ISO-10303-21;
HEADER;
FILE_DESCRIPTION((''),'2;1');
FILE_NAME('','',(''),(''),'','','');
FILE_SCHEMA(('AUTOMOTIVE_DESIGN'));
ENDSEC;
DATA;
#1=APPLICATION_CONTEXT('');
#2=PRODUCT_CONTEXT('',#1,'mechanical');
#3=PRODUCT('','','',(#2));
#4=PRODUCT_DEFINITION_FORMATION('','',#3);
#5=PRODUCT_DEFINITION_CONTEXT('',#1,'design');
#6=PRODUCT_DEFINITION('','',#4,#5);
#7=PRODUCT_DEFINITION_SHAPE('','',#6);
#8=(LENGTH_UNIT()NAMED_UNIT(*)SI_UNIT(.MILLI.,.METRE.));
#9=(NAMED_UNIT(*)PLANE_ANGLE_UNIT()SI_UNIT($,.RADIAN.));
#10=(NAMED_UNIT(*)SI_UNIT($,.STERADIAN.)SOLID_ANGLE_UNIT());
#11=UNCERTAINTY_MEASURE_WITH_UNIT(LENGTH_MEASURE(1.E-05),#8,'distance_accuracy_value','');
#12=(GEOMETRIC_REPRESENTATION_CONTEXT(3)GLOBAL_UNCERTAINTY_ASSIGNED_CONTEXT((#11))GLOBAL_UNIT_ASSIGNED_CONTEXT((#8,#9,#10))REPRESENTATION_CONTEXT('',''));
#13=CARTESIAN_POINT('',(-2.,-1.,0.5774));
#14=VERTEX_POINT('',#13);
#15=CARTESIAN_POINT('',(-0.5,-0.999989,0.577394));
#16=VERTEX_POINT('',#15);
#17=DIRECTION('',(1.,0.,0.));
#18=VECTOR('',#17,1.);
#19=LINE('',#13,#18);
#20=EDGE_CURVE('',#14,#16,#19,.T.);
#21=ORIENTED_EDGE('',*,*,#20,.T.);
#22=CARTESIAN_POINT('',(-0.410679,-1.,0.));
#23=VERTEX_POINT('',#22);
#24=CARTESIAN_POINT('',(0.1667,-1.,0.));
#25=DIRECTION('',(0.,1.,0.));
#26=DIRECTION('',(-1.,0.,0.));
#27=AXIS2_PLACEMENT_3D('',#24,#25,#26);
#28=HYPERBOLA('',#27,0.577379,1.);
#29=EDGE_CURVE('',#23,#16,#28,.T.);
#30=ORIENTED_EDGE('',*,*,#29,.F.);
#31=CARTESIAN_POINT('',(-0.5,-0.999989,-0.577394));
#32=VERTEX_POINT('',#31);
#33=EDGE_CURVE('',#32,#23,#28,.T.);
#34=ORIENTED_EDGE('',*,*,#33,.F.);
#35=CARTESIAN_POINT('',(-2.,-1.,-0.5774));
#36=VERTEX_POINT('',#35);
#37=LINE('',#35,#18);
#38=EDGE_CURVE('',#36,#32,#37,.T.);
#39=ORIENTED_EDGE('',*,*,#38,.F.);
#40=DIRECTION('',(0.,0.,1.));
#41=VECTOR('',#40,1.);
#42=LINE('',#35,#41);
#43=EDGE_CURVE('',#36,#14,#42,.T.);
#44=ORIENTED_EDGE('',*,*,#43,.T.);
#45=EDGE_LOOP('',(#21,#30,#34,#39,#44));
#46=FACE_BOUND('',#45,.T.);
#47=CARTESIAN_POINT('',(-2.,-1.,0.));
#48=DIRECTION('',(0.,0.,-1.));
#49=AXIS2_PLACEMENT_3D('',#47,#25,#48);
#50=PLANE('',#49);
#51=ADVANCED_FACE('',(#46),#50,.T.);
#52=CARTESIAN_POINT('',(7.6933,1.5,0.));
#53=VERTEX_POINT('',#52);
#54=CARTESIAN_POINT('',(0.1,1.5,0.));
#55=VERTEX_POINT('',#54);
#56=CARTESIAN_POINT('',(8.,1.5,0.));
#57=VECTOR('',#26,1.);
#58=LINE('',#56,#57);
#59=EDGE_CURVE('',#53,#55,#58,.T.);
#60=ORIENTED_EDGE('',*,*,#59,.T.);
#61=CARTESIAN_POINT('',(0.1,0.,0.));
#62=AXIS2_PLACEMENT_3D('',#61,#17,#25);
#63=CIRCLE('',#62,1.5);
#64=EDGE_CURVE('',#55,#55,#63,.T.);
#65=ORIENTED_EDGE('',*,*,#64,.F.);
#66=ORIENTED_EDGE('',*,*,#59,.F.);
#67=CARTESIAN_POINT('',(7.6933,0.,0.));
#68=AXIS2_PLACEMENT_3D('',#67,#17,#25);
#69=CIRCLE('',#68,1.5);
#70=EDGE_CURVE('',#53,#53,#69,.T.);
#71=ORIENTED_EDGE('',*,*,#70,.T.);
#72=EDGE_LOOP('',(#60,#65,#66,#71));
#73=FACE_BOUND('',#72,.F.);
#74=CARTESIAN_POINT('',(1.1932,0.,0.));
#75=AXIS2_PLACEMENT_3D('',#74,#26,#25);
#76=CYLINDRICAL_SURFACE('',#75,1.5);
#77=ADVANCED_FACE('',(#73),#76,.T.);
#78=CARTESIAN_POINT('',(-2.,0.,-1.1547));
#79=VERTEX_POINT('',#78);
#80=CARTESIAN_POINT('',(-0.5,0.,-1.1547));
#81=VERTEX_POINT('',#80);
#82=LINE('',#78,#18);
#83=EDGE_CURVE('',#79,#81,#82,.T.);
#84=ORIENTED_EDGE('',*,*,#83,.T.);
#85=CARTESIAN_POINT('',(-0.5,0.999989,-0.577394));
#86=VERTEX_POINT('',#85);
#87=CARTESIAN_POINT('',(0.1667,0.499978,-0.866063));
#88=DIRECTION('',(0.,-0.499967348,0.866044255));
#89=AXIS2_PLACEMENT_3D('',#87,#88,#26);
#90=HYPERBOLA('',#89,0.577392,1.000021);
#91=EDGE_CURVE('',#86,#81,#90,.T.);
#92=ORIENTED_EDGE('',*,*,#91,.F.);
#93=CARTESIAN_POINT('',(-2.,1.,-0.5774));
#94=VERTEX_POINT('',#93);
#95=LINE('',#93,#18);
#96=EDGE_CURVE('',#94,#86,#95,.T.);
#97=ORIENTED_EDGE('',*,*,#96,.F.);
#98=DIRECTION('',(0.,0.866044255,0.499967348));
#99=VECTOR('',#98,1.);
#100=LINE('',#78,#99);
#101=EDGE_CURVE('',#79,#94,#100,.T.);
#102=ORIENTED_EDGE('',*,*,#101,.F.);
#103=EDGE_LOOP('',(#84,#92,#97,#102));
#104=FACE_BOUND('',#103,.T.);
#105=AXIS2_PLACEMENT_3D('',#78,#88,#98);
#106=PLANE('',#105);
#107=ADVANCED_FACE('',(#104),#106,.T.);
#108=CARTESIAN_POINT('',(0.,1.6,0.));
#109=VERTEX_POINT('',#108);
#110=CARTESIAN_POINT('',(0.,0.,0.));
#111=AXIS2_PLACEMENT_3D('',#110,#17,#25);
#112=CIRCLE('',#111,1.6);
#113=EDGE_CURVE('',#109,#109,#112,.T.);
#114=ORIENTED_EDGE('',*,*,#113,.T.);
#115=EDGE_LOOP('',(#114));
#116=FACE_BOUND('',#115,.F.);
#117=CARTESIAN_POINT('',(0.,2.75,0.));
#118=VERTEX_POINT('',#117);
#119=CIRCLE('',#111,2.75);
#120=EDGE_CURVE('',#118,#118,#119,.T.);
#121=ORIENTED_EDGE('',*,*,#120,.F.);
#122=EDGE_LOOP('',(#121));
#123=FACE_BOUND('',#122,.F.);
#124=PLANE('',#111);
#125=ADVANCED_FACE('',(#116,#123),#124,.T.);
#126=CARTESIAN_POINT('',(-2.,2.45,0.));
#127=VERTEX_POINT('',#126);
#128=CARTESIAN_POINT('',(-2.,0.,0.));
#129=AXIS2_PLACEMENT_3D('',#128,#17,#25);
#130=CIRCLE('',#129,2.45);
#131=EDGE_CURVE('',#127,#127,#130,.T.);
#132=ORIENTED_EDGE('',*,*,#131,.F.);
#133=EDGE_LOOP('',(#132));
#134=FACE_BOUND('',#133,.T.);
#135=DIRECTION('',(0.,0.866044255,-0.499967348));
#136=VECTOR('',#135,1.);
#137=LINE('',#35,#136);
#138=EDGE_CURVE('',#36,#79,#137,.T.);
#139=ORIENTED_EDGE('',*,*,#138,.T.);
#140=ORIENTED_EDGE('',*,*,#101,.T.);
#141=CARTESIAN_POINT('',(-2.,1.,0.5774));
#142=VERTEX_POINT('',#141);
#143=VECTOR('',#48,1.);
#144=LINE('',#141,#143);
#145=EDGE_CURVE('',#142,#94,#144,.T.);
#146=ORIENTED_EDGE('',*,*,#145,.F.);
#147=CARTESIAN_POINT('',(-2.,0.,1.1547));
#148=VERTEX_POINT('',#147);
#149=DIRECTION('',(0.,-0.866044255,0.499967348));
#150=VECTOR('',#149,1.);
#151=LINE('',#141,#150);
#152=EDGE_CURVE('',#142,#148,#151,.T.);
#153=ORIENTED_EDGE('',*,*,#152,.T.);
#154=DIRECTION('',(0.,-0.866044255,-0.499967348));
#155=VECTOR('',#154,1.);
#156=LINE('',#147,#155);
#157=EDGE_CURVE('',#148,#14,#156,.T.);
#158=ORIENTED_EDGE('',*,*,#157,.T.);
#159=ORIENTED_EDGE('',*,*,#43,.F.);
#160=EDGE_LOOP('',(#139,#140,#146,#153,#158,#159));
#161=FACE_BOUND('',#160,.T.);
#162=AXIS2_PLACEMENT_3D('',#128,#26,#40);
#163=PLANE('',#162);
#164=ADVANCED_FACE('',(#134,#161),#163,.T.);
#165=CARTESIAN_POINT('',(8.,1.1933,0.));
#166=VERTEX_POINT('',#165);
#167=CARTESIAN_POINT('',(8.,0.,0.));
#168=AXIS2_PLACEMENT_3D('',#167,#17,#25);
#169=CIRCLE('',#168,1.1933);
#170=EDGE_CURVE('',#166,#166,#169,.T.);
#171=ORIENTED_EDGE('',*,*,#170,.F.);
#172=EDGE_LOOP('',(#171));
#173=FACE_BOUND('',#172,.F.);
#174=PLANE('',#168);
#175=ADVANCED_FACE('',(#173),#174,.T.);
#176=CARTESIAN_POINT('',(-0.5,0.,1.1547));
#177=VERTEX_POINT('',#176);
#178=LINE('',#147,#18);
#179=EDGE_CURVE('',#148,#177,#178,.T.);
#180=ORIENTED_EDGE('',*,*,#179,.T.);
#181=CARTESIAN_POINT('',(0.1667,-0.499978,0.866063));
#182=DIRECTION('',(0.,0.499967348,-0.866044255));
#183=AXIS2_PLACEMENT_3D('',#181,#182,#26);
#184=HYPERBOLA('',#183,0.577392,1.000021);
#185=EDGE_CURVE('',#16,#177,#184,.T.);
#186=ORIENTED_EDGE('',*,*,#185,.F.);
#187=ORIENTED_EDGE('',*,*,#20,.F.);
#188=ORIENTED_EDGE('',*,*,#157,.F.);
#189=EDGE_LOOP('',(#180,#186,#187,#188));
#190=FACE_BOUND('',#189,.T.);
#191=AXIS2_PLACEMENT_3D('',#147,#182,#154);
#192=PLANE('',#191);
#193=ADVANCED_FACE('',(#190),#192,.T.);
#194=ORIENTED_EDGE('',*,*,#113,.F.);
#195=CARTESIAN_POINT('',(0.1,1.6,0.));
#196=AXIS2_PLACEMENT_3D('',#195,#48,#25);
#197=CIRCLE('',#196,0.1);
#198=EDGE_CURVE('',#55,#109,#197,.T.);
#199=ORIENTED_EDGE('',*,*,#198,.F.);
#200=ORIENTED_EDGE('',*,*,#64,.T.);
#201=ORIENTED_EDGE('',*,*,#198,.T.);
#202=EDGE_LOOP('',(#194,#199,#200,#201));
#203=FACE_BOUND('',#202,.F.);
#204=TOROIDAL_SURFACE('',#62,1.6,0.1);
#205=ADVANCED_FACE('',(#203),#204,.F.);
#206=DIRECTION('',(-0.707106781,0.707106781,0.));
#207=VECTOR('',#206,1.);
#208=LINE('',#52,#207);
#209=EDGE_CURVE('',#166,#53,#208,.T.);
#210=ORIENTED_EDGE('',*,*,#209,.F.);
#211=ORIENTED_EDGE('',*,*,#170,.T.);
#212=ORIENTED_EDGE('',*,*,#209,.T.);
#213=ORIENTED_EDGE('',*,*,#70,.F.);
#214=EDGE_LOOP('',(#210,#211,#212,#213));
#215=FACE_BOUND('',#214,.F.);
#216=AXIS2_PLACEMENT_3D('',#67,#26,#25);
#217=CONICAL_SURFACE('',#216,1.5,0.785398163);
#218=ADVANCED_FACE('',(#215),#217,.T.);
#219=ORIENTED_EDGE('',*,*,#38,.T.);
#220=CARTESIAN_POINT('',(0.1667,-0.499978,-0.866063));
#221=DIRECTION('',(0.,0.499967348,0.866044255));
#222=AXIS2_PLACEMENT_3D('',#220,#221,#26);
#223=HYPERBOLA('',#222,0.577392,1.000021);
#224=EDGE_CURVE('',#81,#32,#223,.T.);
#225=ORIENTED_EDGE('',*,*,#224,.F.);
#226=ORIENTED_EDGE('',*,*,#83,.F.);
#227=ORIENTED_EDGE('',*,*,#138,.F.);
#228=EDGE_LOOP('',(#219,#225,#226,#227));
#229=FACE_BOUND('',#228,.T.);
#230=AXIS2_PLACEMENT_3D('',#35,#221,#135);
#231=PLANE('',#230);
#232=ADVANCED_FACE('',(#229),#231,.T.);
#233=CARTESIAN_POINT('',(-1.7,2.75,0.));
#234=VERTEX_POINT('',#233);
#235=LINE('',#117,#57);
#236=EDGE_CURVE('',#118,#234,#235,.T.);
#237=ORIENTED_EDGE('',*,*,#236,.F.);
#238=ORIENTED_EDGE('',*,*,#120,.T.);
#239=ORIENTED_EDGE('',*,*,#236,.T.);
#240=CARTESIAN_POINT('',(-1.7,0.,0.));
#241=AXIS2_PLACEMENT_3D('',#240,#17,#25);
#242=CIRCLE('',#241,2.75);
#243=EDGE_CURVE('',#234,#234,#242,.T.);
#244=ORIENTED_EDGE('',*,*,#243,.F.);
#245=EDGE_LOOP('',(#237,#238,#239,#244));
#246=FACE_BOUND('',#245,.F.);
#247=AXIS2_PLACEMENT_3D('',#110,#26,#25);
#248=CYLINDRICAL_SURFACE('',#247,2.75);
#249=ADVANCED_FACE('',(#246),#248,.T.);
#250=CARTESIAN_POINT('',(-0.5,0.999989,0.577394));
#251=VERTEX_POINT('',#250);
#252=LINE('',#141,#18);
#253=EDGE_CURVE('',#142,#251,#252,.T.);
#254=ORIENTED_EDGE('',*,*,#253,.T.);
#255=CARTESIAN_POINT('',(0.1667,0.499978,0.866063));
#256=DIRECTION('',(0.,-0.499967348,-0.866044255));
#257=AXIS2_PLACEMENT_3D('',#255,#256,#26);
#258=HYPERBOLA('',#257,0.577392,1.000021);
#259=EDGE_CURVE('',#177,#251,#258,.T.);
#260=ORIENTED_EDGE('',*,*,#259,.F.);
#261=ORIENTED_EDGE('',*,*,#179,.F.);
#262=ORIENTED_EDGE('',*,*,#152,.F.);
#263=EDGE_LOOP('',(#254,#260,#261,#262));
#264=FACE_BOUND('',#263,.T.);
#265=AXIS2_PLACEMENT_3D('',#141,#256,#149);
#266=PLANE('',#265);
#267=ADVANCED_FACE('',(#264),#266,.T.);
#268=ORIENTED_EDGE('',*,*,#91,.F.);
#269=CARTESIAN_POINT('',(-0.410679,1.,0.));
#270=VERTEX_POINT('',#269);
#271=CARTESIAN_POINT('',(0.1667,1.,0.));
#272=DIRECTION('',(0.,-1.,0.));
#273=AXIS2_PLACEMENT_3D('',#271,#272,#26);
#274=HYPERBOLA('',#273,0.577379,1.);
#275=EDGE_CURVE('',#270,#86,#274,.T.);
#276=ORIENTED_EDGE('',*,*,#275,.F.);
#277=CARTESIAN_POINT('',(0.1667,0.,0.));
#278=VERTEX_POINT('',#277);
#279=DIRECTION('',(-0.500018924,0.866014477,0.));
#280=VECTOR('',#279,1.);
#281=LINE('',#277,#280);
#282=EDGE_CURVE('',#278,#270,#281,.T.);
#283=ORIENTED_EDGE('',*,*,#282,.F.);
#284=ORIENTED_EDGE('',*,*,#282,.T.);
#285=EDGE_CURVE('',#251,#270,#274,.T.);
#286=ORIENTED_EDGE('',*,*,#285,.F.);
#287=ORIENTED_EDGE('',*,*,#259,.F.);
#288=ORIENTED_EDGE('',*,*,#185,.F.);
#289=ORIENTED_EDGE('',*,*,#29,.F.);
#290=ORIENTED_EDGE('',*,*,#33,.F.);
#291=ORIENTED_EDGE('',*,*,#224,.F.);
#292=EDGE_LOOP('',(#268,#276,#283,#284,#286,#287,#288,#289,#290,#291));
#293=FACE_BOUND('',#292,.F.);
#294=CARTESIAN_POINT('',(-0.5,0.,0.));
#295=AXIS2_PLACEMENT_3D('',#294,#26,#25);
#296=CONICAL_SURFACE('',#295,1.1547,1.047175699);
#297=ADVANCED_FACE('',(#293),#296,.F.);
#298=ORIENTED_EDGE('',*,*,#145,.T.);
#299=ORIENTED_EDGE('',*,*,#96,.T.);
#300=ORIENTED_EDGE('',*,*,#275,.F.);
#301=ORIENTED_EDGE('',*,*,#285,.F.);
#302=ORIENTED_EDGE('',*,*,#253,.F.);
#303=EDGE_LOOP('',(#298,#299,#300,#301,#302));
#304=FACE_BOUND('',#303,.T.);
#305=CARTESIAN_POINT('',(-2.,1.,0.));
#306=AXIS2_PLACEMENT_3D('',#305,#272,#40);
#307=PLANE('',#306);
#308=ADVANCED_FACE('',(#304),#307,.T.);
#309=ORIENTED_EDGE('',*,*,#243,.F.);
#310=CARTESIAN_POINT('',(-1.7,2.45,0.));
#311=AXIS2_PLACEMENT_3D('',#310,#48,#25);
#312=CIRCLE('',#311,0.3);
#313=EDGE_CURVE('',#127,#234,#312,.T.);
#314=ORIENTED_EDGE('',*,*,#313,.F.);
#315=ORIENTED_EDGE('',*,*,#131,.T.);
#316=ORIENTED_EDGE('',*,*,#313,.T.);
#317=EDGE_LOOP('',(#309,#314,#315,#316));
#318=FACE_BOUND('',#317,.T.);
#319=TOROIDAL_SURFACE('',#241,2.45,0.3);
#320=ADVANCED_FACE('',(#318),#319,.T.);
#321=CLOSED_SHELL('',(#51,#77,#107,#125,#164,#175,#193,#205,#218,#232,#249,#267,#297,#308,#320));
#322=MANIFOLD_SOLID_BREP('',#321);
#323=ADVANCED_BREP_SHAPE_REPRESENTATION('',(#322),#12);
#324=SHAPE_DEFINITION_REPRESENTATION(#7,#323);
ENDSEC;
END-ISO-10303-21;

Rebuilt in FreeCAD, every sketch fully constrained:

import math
import FreeCAD as App
import Part
import Sketcher


def edges_at(feature, points):
    """Names of the edges that pass closest to the given points."""
    edges = feature.Shape.Edges
    near = lambda p: min(range(len(edges)), key=lambda i: edges[i].distToShape(Part.Vertex(*p))[0])
    return sorted({f"Edge{near(p) + 1}" for p in points})


def add_polygon(sketch, points):
    """Adds a closed chain of lines whose ends are joined by coincident constraints."""
    first, n = sketch.GeometryCount, len(points)
    for a, b in zip(points, points[1:] + points[:1]):
        sketch.addGeometry(Part.LineSegment(App.Vector(*a, 0), App.Vector(*b, 0)), False)
    for i in range(n):
        sketch.addConstraint(Sketcher.Constraint("Coincident", first + i, 2, first + (i + 1) % n, 1))

doc = App.newDocument("Part")
body = doc.addObject("PartDesign::Body", "Body")

# Sketch on XY plane
sketch1 = doc.addObject("Sketcher::SketchObject", "Sketch")
body.addObject(sketch1)
sketch1.AttachmentSupport = (doc.XY_Plane, [""])
sketch1.MapMode = "FlatFace"
add_polygon(sketch1, [(0.1667, 0), (8, 0), (8, 1.5), (0, 1.5), (0, 2.75), (-2, 2.75), (-2, 1.1547), (-0.5, 1.1547)])  # lines 0-7
sketch1.addConstraint([
    Sketcher.Constraint("Horizontal", 0),
    Sketcher.Constraint("Vertical", 1),
    Sketcher.Constraint("Horizontal", 2),
    Sketcher.Constraint("Vertical", 3),
    Sketcher.Constraint("Horizontal", 4),
    Sketcher.Constraint("Vertical", 5),
    Sketcher.Constraint("Horizontal", 6),
    Sketcher.Constraint("PointOnObject", 0, 2, -1),
    Sketcher.Constraint("PointOnObject", 2, 2, -2),
    Sketcher.Constraint("Equal", 6, 1),
    Sketcher.Constraint("DistanceX", 2, 2, 2, 1, 8.0),
    Sketcher.Constraint("DistanceX", 4, 2, 4, 1, 2.0),
    Sketcher.Constraint("DistanceX", 6, 1, 6, 2, 1.5),
    Sketcher.Constraint("DistanceY", 3, 1, 3, 2, 1.25),
    Sketcher.Constraint("DistanceX", 0, 1, 0, 2, 7.8333),
    Sketcher.Constraint("DistanceY", 5, 2, 5, 1, 1.5953),
])
revolution = doc.addObject("PartDesign::Revolution", "Revolution")
body.addObject(revolution)
revolution.Profile = sketch1
revolution.ReferenceAxis = (sketch1, ["H_Axis"])
revolution.Angle = 360

# Sketch on YZ plane
sketch2 = doc.addObject("Sketcher::SketchObject", "Sketch001")
body.addObject(sketch2)
sketch2.AttachmentSupport = (doc.YZ_Plane, [""])
sketch2.MapMode = "FlatFace"
sketch2.AttachmentOffset = App.Placement(App.Vector(0, 0, -2), App.Rotation())
sketch2.addGeometry([
    Part.LineSegment(App.Vector(1, 0.5774, 0), App.Vector(0, 1.1547, 0)),  # 0
    Part.ArcOfCircle(Part.Circle(App.Vector(0, 0, 0), App.Vector(0, 0, 1), 1.1547), math.radians(30.002137), math.radians(90)),  # 1
    Part.ArcOfCircle(Part.Circle(App.Vector(0, 0, 0), App.Vector(0, 0, 1), 1.1547), math.radians(90), math.radians(149.997863)),  # 2
    Part.LineSegment(App.Vector(0, 1.1547, 0), App.Vector(-1, 0.5774, 0)),  # 3
    Part.ArcOfCircle(Part.Circle(App.Vector(0, 0, 0), App.Vector(0, 0, 1), 1.1547), math.radians(-30.002137), math.radians(30.002137)),  # 4
    Part.LineSegment(App.Vector(1, 0.5774, 0), App.Vector(1, -0.5774, 0)),  # 5
    Part.LineSegment(App.Vector(-1, 0.5774, 0), App.Vector(-1, -0.5774, 0)),  # 6
    Part.ArcOfCircle(Part.Circle(App.Vector(0, 0, 0), App.Vector(0, 0, 1), 1.1547), math.radians(149.997863), math.radians(210.002137)),  # 7
    Part.LineSegment(App.Vector(-1, -0.5774, 0), App.Vector(0, -1.1547, 0)),  # 8
    Part.ArcOfCircle(Part.Circle(App.Vector(0, 0, 0), App.Vector(0, 0, 1), 1.1547), math.radians(-149.997863), math.radians(-90)),  # 9
    Part.ArcOfCircle(Part.Circle(App.Vector(0, 0, 0), App.Vector(0, 0, 1), 1.1547), math.radians(-90), math.radians(-30.002137)),  # 10
    Part.LineSegment(App.Vector(0, -1.1547, 0), App.Vector(1, -0.5774, 0)),  # 11
], False)
sketch2.addConstraint([
    Sketcher.Constraint("Coincident", 0, 1, 1, 1),
    Sketcher.Constraint("Coincident", 1, 2, 0, 2),
    Sketcher.Constraint("Coincident", 2, 1, 3, 1),
    Sketcher.Constraint("Coincident", 3, 2, 2, 2),
    Sketcher.Constraint("Coincident", 4, 1, 5, 2),
    Sketcher.Constraint("Coincident", 5, 1, 4, 2),
    Sketcher.Constraint("Coincident", 6, 1, 7, 1),
    Sketcher.Constraint("Coincident", 7, 2, 6, 2),
    Sketcher.Constraint("Coincident", 8, 1, 9, 1),
    Sketcher.Constraint("Coincident", 9, 2, 8, 2),
    Sketcher.Constraint("Coincident", 10, 1, 11, 1),
    Sketcher.Constraint("Coincident", 11, 2, 10, 2),
    Sketcher.Constraint("Vertical", 5),
    Sketcher.Constraint("Vertical", 6),
    Sketcher.Constraint("Coincident", 1, 3, -1, 1),
    Sketcher.Constraint("Coincident", 2, 3, -1, 1),
    Sketcher.Constraint("Coincident", 4, 3, -1, 1),
    Sketcher.Constraint("Coincident", 7, 3, -1, 1),
    Sketcher.Constraint("Coincident", 9, 3, -1, 1),
    Sketcher.Constraint("Coincident", 10, 3, -1, 1),
    Sketcher.Constraint("Coincident", 2, 1, 1, 2),
    Sketcher.Constraint("Coincident", 5, 1, 0, 1),
    Sketcher.Constraint("Coincident", 6, 1, 3, 2),
    Sketcher.Constraint("Coincident", 8, 1, 7, 2),
    Sketcher.Constraint("Coincident", 10, 1, 9, 2),
    Sketcher.Constraint("PointOnObject", 1, 2, -2),
    Sketcher.Constraint("PointOnObject", 9, 2, -2),
    Sketcher.Constraint("Parallel", 0, 8),
    Sketcher.Constraint("Parallel", 3, 11),
    Sketcher.Constraint("DistanceX", -1, 1, 0, 1, 1.0),
    Sketcher.Constraint("Radius", 1, 1.1547),
])
pad1 = doc.addObject("PartDesign::Pad", "Pad")
body.addObject(pad1)
pad1.Profile = sketch2
pad1.Length = 1.5893
doc.recompute()

fillet = doc.addObject("PartDesign::Fillet", "Fillet")
body.addObject(fillet)
fillet.Base = (pad1, edges_at(pad1, [(-2, -2.75, 0)]))
fillet.Radius = 0.3
doc.recompute()

chamfer = doc.addObject("PartDesign::Chamfer", "Chamfer")
body.addObject(chamfer)
chamfer.Base = (fillet, edges_at(fillet, [(8, -1.5, 0)]))
chamfer.ChamferType = "Two distances"
chamfer.Size = 0.3067
chamfer.Size2 = 0.3067
doc.recompute()

fillet2 = doc.addObject("PartDesign::Fillet", "Fillet001")
body.addObject(fillet2)
fillet2.Base = (chamfer, edges_at(chamfer, [(0, -1.5, 0)]))
fillet2.Radius = 0.1

doc.recompute()
